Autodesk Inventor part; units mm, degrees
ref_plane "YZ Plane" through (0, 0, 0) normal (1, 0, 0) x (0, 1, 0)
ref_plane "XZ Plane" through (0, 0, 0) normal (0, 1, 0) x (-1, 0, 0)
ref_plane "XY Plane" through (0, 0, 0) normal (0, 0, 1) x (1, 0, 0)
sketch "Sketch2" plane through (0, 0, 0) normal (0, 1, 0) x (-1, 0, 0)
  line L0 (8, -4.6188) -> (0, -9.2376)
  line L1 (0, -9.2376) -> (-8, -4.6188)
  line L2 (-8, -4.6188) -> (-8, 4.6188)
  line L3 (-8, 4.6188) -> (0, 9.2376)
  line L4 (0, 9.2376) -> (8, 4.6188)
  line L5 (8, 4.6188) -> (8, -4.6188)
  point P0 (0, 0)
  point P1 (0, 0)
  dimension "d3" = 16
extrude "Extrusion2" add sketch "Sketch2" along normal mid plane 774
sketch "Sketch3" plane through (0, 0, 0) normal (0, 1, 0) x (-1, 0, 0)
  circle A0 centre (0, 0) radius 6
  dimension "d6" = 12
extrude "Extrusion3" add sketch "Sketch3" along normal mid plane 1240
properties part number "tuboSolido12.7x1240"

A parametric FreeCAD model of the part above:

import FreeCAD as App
import Part
import Sketcher

V = App.Vector
Q = App.Units.Quantity


def add_polygon(sketch, points):
    """Adds a closed chain of lines whose ends are joined by coincident constraints."""
    first, n = sketch.GeometryCount, len(points)
    for a, b in zip(points, points[1:] + points[:1]):
        sketch.addGeometry(Part.LineSegment(App.Vector(*a, 0), App.Vector(*b, 0)), False)
    for i in range(n):
        sketch.addConstraint(Sketcher.Constraint("Coincident", first + i, 2, first + (i + 1) % n, 1))

doc = App.newDocument("Part")
body = doc.addObject("PartDesign::Body", "Body")

# Sketch on XZ plane
sketch1 = body.newObject("Sketcher::SketchObject", "Sketch")
sketch1.AttachmentSupport = (doc.getObject("XZ_Plane"), [""])
sketch1.MapMode = "FlatFace"
add_polygon(sketch1, [(0, -9.2376), (-8, -4.6188), (-8, 4.6188), (0, 9.2376), (8, 4.6188), (8, -4.6188)])  # lines 0-5
sketch1.addConstraint(Sketcher.Constraint("Vertical", 1))
sketch1.addConstraint(Sketcher.Constraint("Vertical", 4))
sketch1.addConstraint(Sketcher.Constraint("Symmetric", 0, 2, 3, 2, -1, 1))
sketch1.addConstraint(Sketcher.Constraint("Symmetric", 2, 2, 5, 2, -1, 1))
sketch1.addConstraint(Sketcher.Constraint("PointOnObject", 2, 2, -2))
sketch1.addConstraint(Sketcher.Constraint("Parallel", 2, 5))
sketch1.addConstraint(Sketcher.Constraint("Horizontal", 1, 2, 3, 2))
sketch1.addConstraint(Sketcher.Constraint("DistanceX", 1, 2, 3, 2, 16.0))
sketch1.addConstraint(Sketcher.Constraint("Angle", 0, Q("150 deg")))
sketch1.addConstraint(Sketcher.Constraint("DistanceY", 1, 1, 1, 2, 9.2376))
pad1 = body.newObject("PartDesign::Pad", "Pad")
pad1.Profile = sketch1
pad1.Length = 774
pad1.Midplane = True

# Sketch on XZ plane
sketch2 = body.newObject("Sketcher::SketchObject", "Sketch001")
sketch2.AttachmentSupport = (doc.getObject("XZ_Plane"), [""])
sketch2.MapMode = "FlatFace"
sketch2.addGeometry(Part.Circle(V(0, 0, 0), V(0, 0, 1), 6), False)
sketch2.addConstraint(Sketcher.Constraint("Coincident", 0, 3, -1, 1))
sketch2.addConstraint(Sketcher.Constraint("Diameter", 0, 12.0))
pad2 = body.newObject("PartDesign::Pad", "Pad001")
pad2.Profile = sketch2
pad2.Length = 1240
pad2.Midplane = True

doc.recompute()
